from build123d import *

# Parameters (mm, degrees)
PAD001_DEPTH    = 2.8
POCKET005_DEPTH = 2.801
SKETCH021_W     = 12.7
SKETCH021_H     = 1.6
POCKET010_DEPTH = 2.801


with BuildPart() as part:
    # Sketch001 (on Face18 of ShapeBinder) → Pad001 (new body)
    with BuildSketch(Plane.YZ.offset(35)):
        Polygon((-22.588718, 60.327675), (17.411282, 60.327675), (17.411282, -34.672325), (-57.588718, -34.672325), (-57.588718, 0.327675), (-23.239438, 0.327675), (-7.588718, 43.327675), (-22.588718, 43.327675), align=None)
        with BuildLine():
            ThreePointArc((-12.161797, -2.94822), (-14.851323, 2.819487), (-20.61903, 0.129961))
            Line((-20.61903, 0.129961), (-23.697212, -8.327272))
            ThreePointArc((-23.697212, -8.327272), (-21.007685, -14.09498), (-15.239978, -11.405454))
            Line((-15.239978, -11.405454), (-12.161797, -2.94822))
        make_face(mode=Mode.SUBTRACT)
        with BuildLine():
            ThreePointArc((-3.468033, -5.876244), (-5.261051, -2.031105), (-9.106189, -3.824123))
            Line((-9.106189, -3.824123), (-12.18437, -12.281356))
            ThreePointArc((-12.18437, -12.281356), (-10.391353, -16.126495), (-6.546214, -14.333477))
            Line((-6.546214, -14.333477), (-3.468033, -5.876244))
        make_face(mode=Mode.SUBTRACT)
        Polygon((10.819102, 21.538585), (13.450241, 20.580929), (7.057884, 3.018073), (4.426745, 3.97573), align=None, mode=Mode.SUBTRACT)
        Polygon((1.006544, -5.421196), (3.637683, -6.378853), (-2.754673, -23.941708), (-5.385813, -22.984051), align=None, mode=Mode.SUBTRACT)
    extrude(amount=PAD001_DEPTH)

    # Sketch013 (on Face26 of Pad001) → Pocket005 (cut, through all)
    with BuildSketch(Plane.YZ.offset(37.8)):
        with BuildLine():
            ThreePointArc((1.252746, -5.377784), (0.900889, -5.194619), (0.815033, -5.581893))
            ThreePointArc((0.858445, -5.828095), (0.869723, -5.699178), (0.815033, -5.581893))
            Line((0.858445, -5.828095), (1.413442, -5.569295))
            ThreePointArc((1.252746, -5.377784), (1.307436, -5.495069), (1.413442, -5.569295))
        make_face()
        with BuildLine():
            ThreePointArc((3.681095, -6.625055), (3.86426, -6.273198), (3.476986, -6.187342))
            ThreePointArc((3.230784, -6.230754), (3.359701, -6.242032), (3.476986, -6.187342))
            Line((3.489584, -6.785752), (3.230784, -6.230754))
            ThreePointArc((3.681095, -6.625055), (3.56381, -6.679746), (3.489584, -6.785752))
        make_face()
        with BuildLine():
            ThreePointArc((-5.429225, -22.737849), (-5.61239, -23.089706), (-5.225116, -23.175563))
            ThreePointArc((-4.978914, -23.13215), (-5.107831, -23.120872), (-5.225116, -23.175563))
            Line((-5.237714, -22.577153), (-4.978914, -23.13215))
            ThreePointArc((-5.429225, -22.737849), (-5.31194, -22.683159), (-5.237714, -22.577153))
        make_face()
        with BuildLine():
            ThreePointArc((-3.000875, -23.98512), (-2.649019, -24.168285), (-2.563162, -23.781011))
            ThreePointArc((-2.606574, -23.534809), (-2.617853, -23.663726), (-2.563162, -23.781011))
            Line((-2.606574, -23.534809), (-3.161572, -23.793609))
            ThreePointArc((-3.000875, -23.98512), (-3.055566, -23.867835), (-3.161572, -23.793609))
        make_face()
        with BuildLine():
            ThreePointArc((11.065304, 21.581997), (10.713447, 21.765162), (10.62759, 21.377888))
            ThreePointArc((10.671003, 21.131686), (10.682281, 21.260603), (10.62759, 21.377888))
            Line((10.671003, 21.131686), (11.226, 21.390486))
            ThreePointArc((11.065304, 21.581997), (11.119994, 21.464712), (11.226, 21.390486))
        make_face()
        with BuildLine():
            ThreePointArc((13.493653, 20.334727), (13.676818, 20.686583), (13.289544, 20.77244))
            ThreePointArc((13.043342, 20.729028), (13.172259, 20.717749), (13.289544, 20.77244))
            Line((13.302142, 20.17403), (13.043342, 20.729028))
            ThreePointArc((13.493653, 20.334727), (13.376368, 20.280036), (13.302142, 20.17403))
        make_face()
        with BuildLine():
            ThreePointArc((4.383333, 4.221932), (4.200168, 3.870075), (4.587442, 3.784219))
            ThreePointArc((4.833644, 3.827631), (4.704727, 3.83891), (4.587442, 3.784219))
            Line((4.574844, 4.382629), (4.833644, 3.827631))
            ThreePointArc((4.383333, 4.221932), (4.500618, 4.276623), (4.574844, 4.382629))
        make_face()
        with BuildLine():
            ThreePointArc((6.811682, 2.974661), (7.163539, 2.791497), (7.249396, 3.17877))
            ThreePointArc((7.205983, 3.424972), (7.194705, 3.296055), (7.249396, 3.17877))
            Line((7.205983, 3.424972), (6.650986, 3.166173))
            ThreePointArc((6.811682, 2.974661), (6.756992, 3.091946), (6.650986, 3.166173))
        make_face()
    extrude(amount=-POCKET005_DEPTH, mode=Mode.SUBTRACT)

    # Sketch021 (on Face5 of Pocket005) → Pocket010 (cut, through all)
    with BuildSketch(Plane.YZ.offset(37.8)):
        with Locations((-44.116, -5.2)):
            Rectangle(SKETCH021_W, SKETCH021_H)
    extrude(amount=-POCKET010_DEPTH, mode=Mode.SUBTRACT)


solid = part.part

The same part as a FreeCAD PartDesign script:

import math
import FreeCAD as App
import Part
import Sketcher
from FreeCAD import Vector
Q = App.Units.Quantity

doc = App.newDocument("Part")
body = doc.addObject("PartDesign::Body", "Body")

# Sketch on YZ plane
sketch1 = doc.addObject("Sketcher::SketchObject", "Sketch")
body.addObject(sketch1)
sketch1.AttachmentSupport = (doc.YZ_Plane, [""])
sketch1.MapMode = "FlatFace"
sketch1.AttachmentOffset = App.Placement(Vector(0, 0, 35), App.Rotation())
sketch1.addGeometry([
    Part.LineSegment(Vector(17.4, 60.3, 0), Vector(-22.6, 60.3, 0)),  # 0
    Part.LineSegment(Vector(-22.6, 60.3, 0), Vector(-22.6, 43.3, 0)),  # 1
    Part.LineSegment(Vector(-22.6, 43.3, 0), Vector(-7.6, 43.3, 0)),  # 2
    Part.LineSegment(Vector(-7.6, 43.3, 0), Vector(-23.2, 0.3, 0)),  # 3
    Part.LineSegment(Vector(-23.2, 0.3, 0), Vector(-57.6, 0.3, 0)),  # 4
    Part.LineSegment(Vector(-57.6, 0.3, 0), Vector(-57.6, -34.7, 0)),  # 5
    Part.LineSegment(Vector(-57.6, -34.7, 0), Vector(17.4, -34.7, 0)),  # 6
    Part.LineSegment(Vector(17.4, -34.7, 0), Vector(17.4, 60.3, 0)),  # 7
    Part.LineSegment(Vector(1, -5.4, 0), Vector(3.6, -6.4, 0)),  # 8
    Part.LineSegment(Vector(3.6, -6.4, 0), Vector(-2.8, -23.9, 0)),  # 9
    Part.LineSegment(Vector(-2.8, -23.9, 0), Vector(-5.4, -23, 0)),  # 10
    Part.LineSegment(Vector(-5.4, -23, 0), Vector(1, -5.4, 0)),  # 11
    Part.LineSegment(Vector(-3.5, -5.9, 0), Vector(-6.5, -14.3, 0)),  # 12
    Part.ArcOfCircle(Part.Circle(Vector(-9.4, -13.3, 0), Vector(0, 0, 1), 3), math.radians(160), math.radians(340)),  # 13
    Part.LineSegment(Vector(-12.2, -12.3, 0), Vector(-9.1, -3.8, 0)),  # 14
    Part.ArcOfCircle(Part.Circle(Vector(-6.3, -4.9, 0), Vector(0, 0, 1), 3), math.radians(-20), math.radians(160)),  # 15
    Part.LineSegment(Vector(-12.2, -2.9, 0), Vector(-15.2, -11.4, 0)),  # 16
    Part.ArcOfCircle(Part.Circle(Vector(-19.5, -9.9, 0), Vector(0, 0, 1), 4.5), math.radians(160), math.radians(340)),  # 17
    Part.LineSegment(Vector(-23.7, -8.3, 0), Vector(-20.6, 0.1, 0)),  # 18
    Part.ArcOfCircle(Part.Circle(Vector(-16.4, -1.4, 0), Vector(0, 0, 1), 4.5), math.radians(-20), math.radians(160)),  # 19
    Part.LineSegment(Vector(10.8, 21.5, 0), Vector(13.5, 20.6, 0)),  # 20
    Part.LineSegment(Vector(13.5, 20.6, 0), Vector(7.1, 3, 0)),  # 21
    Part.LineSegment(Vector(7.1, 3, 0), Vector(4.4, 4, 0)),  # 22
    Part.LineSegment(Vector(4.4, 4, 0), Vector(10.8, 21.5, 0)),  # 23
], False)
sketch1.addConstraint([
    Sketcher.Constraint("Coincident", 0, 2, 1, 1),
    Sketcher.Constraint("Coincident", 1, 2, 2, 1),
    Sketcher.Constraint("Coincident", 2, 2, 3, 1),
    Sketcher.Constraint("Coincident", 3, 2, 4, 1),
    Sketcher.Constraint("Coincident", 4, 2, 5, 1),
    Sketcher.Constraint("Coincident", 5, 2, 6, 1),
    Sketcher.Constraint("Coincident", 6, 2, 7, 1),
    Sketcher.Constraint("Coincident", 7, 2, 0, 1),
    Sketcher.Constraint("Coincident", 8, 2, 9, 1),
    Sketcher.Constraint("Coincident", 9, 2, 10, 1),
    Sketcher.Constraint("Coincident", 10, 2, 11, 1),
    Sketcher.Constraint("Coincident", 11, 2, 8, 1),
    Sketcher.Constraint("Tangent", 12, 2, 13, 2),
    Sketcher.Constraint("Tangent", 13, 1, 14, 1),
    Sketcher.Constraint("Tangent", 14, 2, 15, 2),
    Sketcher.Constraint("Tangent", 15, 1, 12, 1),
    Sketcher.Constraint("Tangent", 16, 2, 17, 2),
    Sketcher.Constraint("Tangent", 17, 1, 18, 1),
    Sketcher.Constraint("Tangent", 18, 2, 19, 2),
    Sketcher.Constraint("Tangent", 19, 1, 16, 1),
    Sketcher.Constraint("Coincident", 20, 2, 21, 1),
    Sketcher.Constraint("Coincident", 21, 2, 22, 1),
    Sketcher.Constraint("Coincident", 22, 2, 23, 1),
    Sketcher.Constraint("Coincident", 23, 2, 20, 1),
    Sketcher.Constraint("Horizontal", 0),
    Sketcher.Constraint("Vertical", 1),
    Sketcher.Constraint("Horizontal", 2),
    Sketcher.Constraint("Horizontal", 4),
    Sketcher.Constraint("Vertical", 5),
    Sketcher.Constraint("Horizontal", 6),
    Sketcher.Constraint("Vertical", 7),
    Sketcher.Constraint("Equal", 13, 15),
    Sketcher.Constraint("Equal", 17, 19),
    Sketcher.Constraint("Perpendicular", 3, 8),
    Sketcher.Constraint("Perpendicular", 8, 9),
    Sketcher.Constraint("Perpendicular", 9, 10),
    Sketcher.Constraint("Perpendicular", 10, 11),
    Sketcher.Constraint("Parallel", 11, 12),
    Sketcher.Constraint("Parallel", 14, 16),
    Sketcher.Constraint("Perpendicular", 18, 20),
    Sketcher.Constraint("Perpendicular", 20, 21),
    Sketcher.Constraint("Perpendicular", 21, 22),
    Sketcher.Constraint("Perpendicular", 22, 23),
    Sketcher.Constraint("Equal", 14, 16),
    Sketcher.Constraint("Equal", 10, 20),
    Sketcher.Constraint("Equal", 11, 21),
    Sketcher.Constraint("Radius", 13, Q("3 mm")),
    Sketcher.Constraint("Radius", 17, Q("4.5 mm")),
    Sketcher.Constraint("DistanceX", 0, 2, 0, 1, Q("40 mm")),
    Sketcher.Constraint("DistanceX", 2, 1, 2, 2, Q("15 mm")),
    Sketcher.Constraint("DistanceX", 6, 1, 6, 2, Q("75 mm")),
    Sketcher.Constraint("DistanceY", 1, 2, 1, 1, Q("17 mm")),
    Sketcher.Constraint("DistanceY", 5, 2, 5, 1, Q("35 mm")),
    Sketcher.Constraint("DistanceY", 7, 1, 7, 2, Q("95 mm")),
    Sketcher.Constraint("Angle", 3, Q("-110 deg")),
    Sketcher.Constraint("Distance", 12, Q("8.999999 mm")),
    Sketcher.Constraint("Distance", 8, Q("2.8 mm")),
    Sketcher.Constraint("Distance", 9, Q("18.69 mm")),
    Sketcher.Constraint("DistanceX", 12, 2, 10, 2, Q("1.160401 mm")),
    Sketcher.Constraint("DistanceX", 8, 2, 21, 2, Q("3.420201 mm")),
    Sketcher.Constraint("DistanceX", 15, 3, -1, 1, Q("6.287111 mm")),
    Sketcher.Constraint("DistanceY", 19, 3, -1, 1, Q("1.409129 mm")),
    Sketcher.Constraint("DistanceX", 0, 2, -1, 1, Q("22.588718 mm")),
    Sketcher.Constraint("DistanceY", 10, 2, -1, 1, Q("22.984051 mm")),
    Sketcher.Constraint("DistanceX", 16, 2, -1, 1, Q("15.239978 mm")),
    Sketcher.Constraint("DistanceY", -1, 1, 20, 2, Q("20.580929 mm")),
    Sketcher.Constraint("DistanceY", 17, 3, 15, 3, Q("5.016179 mm")),
    Sketcher.Constraint("DistanceY", 15, 3, 0, 2, Q("65.177858 mm")),
])
pad1 = doc.addObject("PartDesign::Pad", "Pad")
body.addObject(pad1)
pad1.Profile = sketch1
pad1.Length = 2.8

# Sketch on YZ plane
sketch2 = doc.addObject("Sketcher::SketchObject", "Sketch001")
body.addObject(sketch2)
sketch2.AttachmentSupport = (doc.YZ_Plane, [""])
sketch2.MapMode = "FlatFace"
sketch2.AttachmentOffset = App.Placement(Vector(0, 0, 37.8), App.Rotation())
sketch2.addGeometry([
    Part.ArcOfCircle(Part.Circle(Vector(1.01, -5.42, 0), Vector(0, 0, 1), 0.25), math.radians(10), math.radians(220)),  # 0
    Part.ArcOfCircle(Part.Circle(Vector(0.62, -5.74, 0), Vector(0, 0, 1), 0.25), math.radians(-20), math.radians(40)),  # 1
    Part.LineSegment(Vector(0.86, -5.83, 0), Vector(1.41, -5.57, 0)),  # 2
    Part.ArcOfCircle(Part.Circle(Vector(1.5, -5.33, 0), Vector(0, 0, 1), 0.25), math.radians(-170), math.radians(-110)),  # 3
    Part.ArcOfCircle(Part.Circle(Vector(3.64, -6.38, 0), Vector(0, 0, 1), 0.25), math.radians(-80), math.radians(130)),  # 4
    Part.ArcOfCircle(Part.Circle(Vector(3.32, -6, 0), Vector(0, 0, 1), 0.25), math.radians(-110), math.radians(-50)),  # 5
    Part.LineSegment(Vector(3.23, -6.23, 0), Vector(3.49, -6.79, 0)),  # 6
    Part.ArcOfCircle(Part.Circle(Vector(3.72, -6.87, 0), Vector(0, 0, 1), 0.25), math.radians(100), math.radians(160)),  # 7
    Part.ArcOfCircle(Part.Circle(Vector(-5.39, -22.98, 0), Vector(0, 0, 1), 0.25), math.radians(100), math.radians(310)),  # 8
    Part.ArcOfCircle(Part.Circle(Vector(-5.06, -23.37, 0), Vector(0, 0, 1), 0.25), math.radians(70), math.radians(130)),  # 9
    Part.LineSegment(Vector(-4.98, -23.13, 0), Vector(-5.24, -22.58, 0)),  # 10
    Part.ArcOfCircle(Part.Circle(Vector(-5.47, -22.49, 0), Vector(0, 0, 1), 0.25), math.radians(-80), math.radians(-20)),  # 11
    Part.ArcOfCircle(Part.Circle(Vector(-2.75, -23.94, 0), Vector(0, 0, 1), 0.25), math.radians(-170), math.radians(40)),  # 12
    Part.ArcOfCircle(Part.Circle(Vector(-2.37, -23.62, 0), Vector(0, 0, 1), 0.25), math.radians(160), math.radians(220)),  # 13
    Part.LineSegment(Vector(-2.61, -23.53, 0), Vector(-3.16, -23.79, 0)),  # 14
    Part.ArcOfCircle(Part.Circle(Vector(-3.25, -24.03, 0), Vector(0, 0, 1), 0.25), math.radians(10), math.radians(70)),  # 15
    Part.ArcOfCircle(Part.Circle(Vector(10.82, 21.54, 0), Vector(0, 0, 1), 0.25), math.radians(10), math.radians(220)),  # 16
    Part.ArcOfCircle(Part.Circle(Vector(10.44, 21.22, 0), Vector(0, 0, 1), 0.25), math.radians(-20), math.radians(40)),  # 17
    Part.LineSegment(Vector(10.67, 21.13, 0), Vector(11.23, 21.39, 0)),  # 18
    Part.ArcOfCircle(Part.Circle(Vector(11.31, 21.63, 0), Vector(0, 0, 1), 0.25), math.radians(-170), math.radians(-110)),  # 19
    Part.ArcOfCircle(Part.Circle(Vector(13.45, 20.58, 0), Vector(0, 0, 1), 0.25), math.radians(-80), math.radians(130)),  # 20
    Part.ArcOfCircle(Part.Circle(Vector(13.13, 20.96, 0), Vector(0, 0, 1), 0.25), math.radians(-110), math.radians(-50)),  # 21
    Part.LineSegment(Vector(13.04, 20.73, 0), Vector(13.3, 20.17, 0)),  # 22
    Part.ArcOfCircle(Part.Circle(Vector(13.54, 20.09, 0), Vector(0, 0, 1), 0.25), math.radians(100), math.radians(160)),  # 23
    Part.ArcOfCircle(Part.Circle(Vector(4.43, 3.98, 0), Vector(0, 0, 1), 0.25), math.radians(100), math.radians(310)),  # 24
    Part.ArcOfCircle(Part.Circle(Vector(4.75, 3.59, 0), Vector(0, 0, 1), 0.25), math.radians(70), math.radians(130)),  # 25
    Part.LineSegment(Vector(4.83, 3.83, 0), Vector(4.57, 4.38, 0)),  # 26
    Part.ArcOfCircle(Part.Circle(Vector(4.34, 4.47, 0), Vector(0, 0, 1), 0.25), math.radians(-80), math.radians(-20)),  # 27
    Part.ArcOfCircle(Part.Circle(Vector(7.06, 3.02, 0), Vector(0, 0, 1), 0.25), math.radians(-170), math.radians(40)),  # 28
    Part.ArcOfCircle(Part.Circle(Vector(7.44, 3.34, 0), Vector(0, 0, 1), 0.25), math.radians(160), math.radians(220)),  # 29
    Part.LineSegment(Vector(7.21, 3.42, 0), Vector(6.65, 3.17, 0)),  # 30
    Part.ArcOfCircle(Part.Circle(Vector(6.57, 2.93, 0), Vector(0, 0, 1), 0.25), math.radians(10), math.radians(70)),  # 31
], False)
sketch2.addConstraint([
    Sketcher.Constraint("Coincident", 0, 2, 1, 2),
    Sketcher.Constraint("Coincident", 1, 1, 2, 1),
    Sketcher.Constraint("Coincident", 2, 2, 3, 2),
    Sketcher.Constraint("Coincident", 3, 1, 0, 1),
    Sketcher.Constraint("Coincident", 4, 2, 5, 2),
    Sketcher.Constraint("Coincident", 5, 1, 6, 1),
    Sketcher.Constraint("Coincident", 6, 2, 7, 2),
    Sketcher.Constraint("Tangent", 7, 1, 4, 1),
    Sketcher.Constraint("Tangent", 8, 2, 9, 2),
    Sketcher.Constraint("Coincident", 9, 1, 10, 1),
    Sketcher.Constraint("Coincident", 10, 2, 11, 2),
    Sketcher.Constraint("Coincident", 11, 1, 8, 1),
    Sketcher.Constraint("Coincident", 12, 2, 13, 2),
    Sketcher.Constraint("Coincident", 13, 1, 14, 1),
    Sketcher.Constraint("Coincident", 14, 2, 15, 2),
    Sketcher.Constraint("Tangent", 15, 1, 12, 1),
    Sketcher.Constraint("Tangent", 16, 2, 17, 2),
    Sketcher.Constraint("Coincident", 17, 1, 18, 1),
    Sketcher.Constraint("Coincident", 18, 2, 19, 2),
    Sketcher.Constraint("Coincident", 19, 1, 16, 1),
    Sketcher.Constraint("Coincident", 20, 2, 21, 2),
    Sketcher.Constraint("Coincident", 21, 1, 22, 1),
    Sketcher.Constraint("Coincident", 22, 2, 23, 2),
    Sketcher.Constraint("Tangent", 23, 1, 20, 1),
    Sketcher.Constraint("Tangent", 24, 2, 25, 2),
    Sketcher.Constraint("Coincident", 25, 1, 26, 1),
    Sketcher.Constraint("Coincident", 26, 2, 27, 2),
    Sketcher.Constraint("Tangent", 27, 1, 24, 1),
    Sketcher.Constraint("Coincident", 28, 2, 29, 2),
    Sketcher.Constraint("Coincident", 29, 1, 30, 1),
    Sketcher.Constraint("Coincident", 30, 2, 31, 2),
    Sketcher.Constraint("Coincident", 31, 1, 28, 1),
    Sketcher.Constraint("Equal", 0, 4),
    Sketcher.Constraint("Equal", 1, 5),
    Sketcher.Constraint("Equal", 4, 7),
    Sketcher.Constraint("Equal", 7, 8),
    Sketcher.Constraint("Equal", 3, 11),
    Sketcher.Constraint("Equal", 8, 12),
    Sketcher.Constraint("Equal", 12, 13),
    Sketcher.Constraint("Equal", 13, 15),
    Sketcher.Constraint("Equal", 15, 16),
    Sketcher.Constraint("Equal", 9, 17),
    Sketcher.Constraint("Equal", 11, 19),
    Sketcher.Constraint("Equal", 16, 20),
    Sketcher.Constraint("Equal", 20, 21),
    Sketcher.Constraint("Equal", 21, 23),
    Sketcher.Constraint("Equal", 23, 24),
    Sketcher.Constraint("Equal", 24, 25),
    Sketcher.Constraint("Equal", 25, 27),
    Sketcher.Constraint("Equal", 27, 28),
    Sketcher.Constraint("Equal", 17, 29),
    Sketcher.Constraint("Equal", 28, 31),
    Sketcher.Constraint("Perpendicular", 2, 6),
    Sketcher.Constraint("Parallel", 6, 10),
    Sketcher.Constraint("Perpendicular", 10, 14),
    Sketcher.Constraint("Parallel", 14, 18),
    Sketcher.Constraint("Perpendicular", 18, 22),
    Sketcher.Constraint("Parallel", 22, 26),
    Sketcher.Constraint("Perpendicular", 26, 30),
    Sketcher.Constraint("Equal", 2, 6),
    Sketcher.Constraint("Equal", 6, 10),
    Sketcher.Constraint("Equal", 10, 14),
    Sketcher.Constraint("Equal", 14, 18),
    Sketcher.Constraint("Equal", 18, 22),
    Sketcher.Constraint("Equal", 22, 26),
    Sketcher.Constraint("Equal", 26, 30),
    Sketcher.Constraint("Angle", 6, Q("-64.999985 deg")),
    Sketcher.Constraint("Radius", 0, Q("0.25 mm")),
    Sketcher.Constraint("DistanceX", -1, 1, 18, 2, Q("11.226 mm")),
    Sketcher.Constraint("Radius", 1, Q("0.250005 mm")),
    Sketcher.Constraint("Radius", 3, Q("0.249996 mm")),
    Sketcher.Constraint("Radius", 9, Q("0.250002 mm")),
    Sketcher.Constraint("DistanceY", 6, 2, 5, 1, Q("0.554998 mm")),
    Sketcher.Constraint("DistanceX", -1, 1, 16, 3, Q("10.819102 mm")),
    Sketcher.Constraint("DistanceX", 0, 3, 3, 3, Q("0.492401 mm")),
    Sketcher.Constraint("DistanceY", 8, 3, 4, 3, Q("16.605198 mm")),
    Sketcher.Constraint("DistanceX", 9, 3, 4, 3, Q("8.702101 mm")),
    Sketcher.Constraint("DistanceY", 8, 3, 11, 3, Q("0.492401 mm")),
    Sketcher.Constraint("DistanceX", 16, 3, 19, 3, Q("0.492401 mm")),
    Sketcher.Constraint("DistanceY", 0, 3, 19, 3, Q("27.046602 mm")),
    Sketcher.Constraint("DistanceX", 3, 3, 24, 3, Q("2.9278 mm")),
    Sketcher.Constraint("DistanceY", 5, 3, 28, 3, Q("9.013899 mm")),
    Sketcher.Constraint("DistanceX", 4, 3, 28, 3, Q("3.420201 mm")),
    Sketcher.Constraint("DistanceX", 1, 1, 0, 3, Q("0.148099 mm")),
    Sketcher.Constraint("DistanceX", 3, 1, 3, 3, Q("0.246199 mm")),
    Sketcher.Constraint("DistanceX", 5, 1, 4, 3, Q("0.406899 mm")),
    Sketcher.Constraint("DistanceY", 4, 3, 5, 1, Q("0.148099 mm")),
    Sketcher.Constraint("DistanceX", 8, 2, 9, 3, Q("0.160698 mm")),
    Sketcher.Constraint("DistanceY", 11, 1, 11, 3, Q("0.246199 mm")),
    Sketcher.Constraint("DistanceX", 12, 3, 13, 1, Q("0.148099 mm")),
    Sketcher.Constraint("DistanceY", 12, 3, 13, 1, Q("0.406899 mm")),
    Sketcher.Constraint("DistanceX", 19, 1, 19, 3, Q("0.246199 mm")),
    Sketcher.Constraint("DistanceX", 21, 1, 20, 3, Q("0.406899 mm")),
    Sketcher.Constraint("DistanceY", 20, 3, 21, 1, Q("0.148099 mm")),
    Sketcher.Constraint("DistanceX", 24, 2, 25, 1, Q("0.246202 mm")),
    Sketcher.Constraint("DistanceX", 24, 3, 25, 1, Q("0.406899 mm")),
    Sketcher.Constraint("DistanceY", 28, 2, 29, 3, Q("0.160698 mm")),
    Sketcher.Constraint("DistanceY", 28, 2, 29, 1, Q("0.246202 mm")),
    Sketcher.Constraint("DistanceX", 28, 3, 29, 1, Q("0.148099 mm")),
    Sketcher.Constraint("DistanceX", 31, 3, 31, 1, Q("0.246202 mm")),
    Sketcher.Constraint("DistanceY", 1, 3, -1, 1, Q("5.742591 mm")),
    Sketcher.Constraint("DistanceX", -1, 1, 5, 3, Q("3.316288 mm")),
    Sketcher.Constraint("DistanceY", 8, 3, -1, 1, Q("22.984051 mm")),
    Sketcher.Constraint("DistanceX", -1, 1, 20, 3, Q("13.450241 mm")),
    Sketcher.Constraint("DistanceY", -1, 1, 20, 3, Q("20.580929 mm")),
    Sketcher.Constraint("DistanceY", -1, 1, 24, 3, Q("3.97573 mm")),
    Sketcher.Constraint("DistanceX", -1, 1, 25, 3, Q("4.748139 mm")),
    Sketcher.Constraint("DistanceY", 12, 2, -1, 1, Q("23.781011 mm")),
    Sketcher.Constraint("DistanceY", 13, 1, -1, 1, Q("23.534809 mm")),
    Sketcher.Constraint("DistanceX", 14, 2, -1, 1, Q("3.161572 mm")),
    Sketcher.Constraint("DistanceY", -1, 1, 20, 2, Q("20.77244 mm")),
    Sketcher.Constraint("DistanceX", 0, 2, 0, 3, Q("0.191511 mm")),
    Sketcher.Constraint("DistanceY", 4, 3, 4, 2, Q("0.191511 mm")),
])
pocket1 = doc.addObject("PartDesign::Pocket", "Pocket")
body.addObject(pocket1)
pocket1.Profile = sketch2
pocket1.Type = "ThroughAll"

# Sketch on YZ plane
sketch3 = doc.addObject("Sketcher::SketchObject", "Sketch002")
body.addObject(sketch3)
sketch3.AttachmentSupport = (doc.YZ_Plane, [""])
sketch3.MapMode = "FlatFace"
sketch3.AttachmentOffset = App.Placement(Vector(0, 0, 37.8), App.Rotation())
sketch3.addGeometry([
    Part.LineSegment(Vector(-50.5, -4.4, 0), Vector(-50.5, -6, 0)),
    Part.LineSegment(Vector(-50.5, -6, 0), Vector(-37.8, -6, 0)),
    Part.LineSegment(Vector(-37.8, -6, 0), Vector(-37.8, -4.4, 0)),
    Part.LineSegment(Vector(-37.8, -4.4, 0), Vector(-50.5, -4.4, 0)),
], False)
sketch3.addConstraint([
    Sketcher.Constraint("Coincident", 0, 2, 1, 1),
    Sketcher.Constraint("Coincident", 1, 2, 2, 1),
    Sketcher.Constraint("Coincident", 2, 2, 3, 1),
    Sketcher.Constraint("Coincident", 3, 2, 0, 1),
    Sketcher.Constraint("Vertical", 0),
    Sketcher.Constraint("Horizontal", 1),
    Sketcher.Constraint("Vertical", 2),
    Sketcher.Constraint("Horizontal", 3),
    Sketcher.Constraint("DistanceX", 1, 1, 1, 2, Q("12.7 mm")),
    Sketcher.Constraint("DistanceY", 0, 2, 0, 1, Q("1.6 mm")),
    Sketcher.Constraint("DistanceY", 0, 2, -1, 1, Q("6 mm")),
    Sketcher.Constraint("DistanceX", 0, 2, -1, 1, Q("50.466 mm")),
])
pocket2 = doc.addObject("PartDesign::Pocket", "Pocket001")
body.addObject(pocket2)
pocket2.Profile = sketch3
pocket2.Type = "ThroughAll"

doc.recompute()
